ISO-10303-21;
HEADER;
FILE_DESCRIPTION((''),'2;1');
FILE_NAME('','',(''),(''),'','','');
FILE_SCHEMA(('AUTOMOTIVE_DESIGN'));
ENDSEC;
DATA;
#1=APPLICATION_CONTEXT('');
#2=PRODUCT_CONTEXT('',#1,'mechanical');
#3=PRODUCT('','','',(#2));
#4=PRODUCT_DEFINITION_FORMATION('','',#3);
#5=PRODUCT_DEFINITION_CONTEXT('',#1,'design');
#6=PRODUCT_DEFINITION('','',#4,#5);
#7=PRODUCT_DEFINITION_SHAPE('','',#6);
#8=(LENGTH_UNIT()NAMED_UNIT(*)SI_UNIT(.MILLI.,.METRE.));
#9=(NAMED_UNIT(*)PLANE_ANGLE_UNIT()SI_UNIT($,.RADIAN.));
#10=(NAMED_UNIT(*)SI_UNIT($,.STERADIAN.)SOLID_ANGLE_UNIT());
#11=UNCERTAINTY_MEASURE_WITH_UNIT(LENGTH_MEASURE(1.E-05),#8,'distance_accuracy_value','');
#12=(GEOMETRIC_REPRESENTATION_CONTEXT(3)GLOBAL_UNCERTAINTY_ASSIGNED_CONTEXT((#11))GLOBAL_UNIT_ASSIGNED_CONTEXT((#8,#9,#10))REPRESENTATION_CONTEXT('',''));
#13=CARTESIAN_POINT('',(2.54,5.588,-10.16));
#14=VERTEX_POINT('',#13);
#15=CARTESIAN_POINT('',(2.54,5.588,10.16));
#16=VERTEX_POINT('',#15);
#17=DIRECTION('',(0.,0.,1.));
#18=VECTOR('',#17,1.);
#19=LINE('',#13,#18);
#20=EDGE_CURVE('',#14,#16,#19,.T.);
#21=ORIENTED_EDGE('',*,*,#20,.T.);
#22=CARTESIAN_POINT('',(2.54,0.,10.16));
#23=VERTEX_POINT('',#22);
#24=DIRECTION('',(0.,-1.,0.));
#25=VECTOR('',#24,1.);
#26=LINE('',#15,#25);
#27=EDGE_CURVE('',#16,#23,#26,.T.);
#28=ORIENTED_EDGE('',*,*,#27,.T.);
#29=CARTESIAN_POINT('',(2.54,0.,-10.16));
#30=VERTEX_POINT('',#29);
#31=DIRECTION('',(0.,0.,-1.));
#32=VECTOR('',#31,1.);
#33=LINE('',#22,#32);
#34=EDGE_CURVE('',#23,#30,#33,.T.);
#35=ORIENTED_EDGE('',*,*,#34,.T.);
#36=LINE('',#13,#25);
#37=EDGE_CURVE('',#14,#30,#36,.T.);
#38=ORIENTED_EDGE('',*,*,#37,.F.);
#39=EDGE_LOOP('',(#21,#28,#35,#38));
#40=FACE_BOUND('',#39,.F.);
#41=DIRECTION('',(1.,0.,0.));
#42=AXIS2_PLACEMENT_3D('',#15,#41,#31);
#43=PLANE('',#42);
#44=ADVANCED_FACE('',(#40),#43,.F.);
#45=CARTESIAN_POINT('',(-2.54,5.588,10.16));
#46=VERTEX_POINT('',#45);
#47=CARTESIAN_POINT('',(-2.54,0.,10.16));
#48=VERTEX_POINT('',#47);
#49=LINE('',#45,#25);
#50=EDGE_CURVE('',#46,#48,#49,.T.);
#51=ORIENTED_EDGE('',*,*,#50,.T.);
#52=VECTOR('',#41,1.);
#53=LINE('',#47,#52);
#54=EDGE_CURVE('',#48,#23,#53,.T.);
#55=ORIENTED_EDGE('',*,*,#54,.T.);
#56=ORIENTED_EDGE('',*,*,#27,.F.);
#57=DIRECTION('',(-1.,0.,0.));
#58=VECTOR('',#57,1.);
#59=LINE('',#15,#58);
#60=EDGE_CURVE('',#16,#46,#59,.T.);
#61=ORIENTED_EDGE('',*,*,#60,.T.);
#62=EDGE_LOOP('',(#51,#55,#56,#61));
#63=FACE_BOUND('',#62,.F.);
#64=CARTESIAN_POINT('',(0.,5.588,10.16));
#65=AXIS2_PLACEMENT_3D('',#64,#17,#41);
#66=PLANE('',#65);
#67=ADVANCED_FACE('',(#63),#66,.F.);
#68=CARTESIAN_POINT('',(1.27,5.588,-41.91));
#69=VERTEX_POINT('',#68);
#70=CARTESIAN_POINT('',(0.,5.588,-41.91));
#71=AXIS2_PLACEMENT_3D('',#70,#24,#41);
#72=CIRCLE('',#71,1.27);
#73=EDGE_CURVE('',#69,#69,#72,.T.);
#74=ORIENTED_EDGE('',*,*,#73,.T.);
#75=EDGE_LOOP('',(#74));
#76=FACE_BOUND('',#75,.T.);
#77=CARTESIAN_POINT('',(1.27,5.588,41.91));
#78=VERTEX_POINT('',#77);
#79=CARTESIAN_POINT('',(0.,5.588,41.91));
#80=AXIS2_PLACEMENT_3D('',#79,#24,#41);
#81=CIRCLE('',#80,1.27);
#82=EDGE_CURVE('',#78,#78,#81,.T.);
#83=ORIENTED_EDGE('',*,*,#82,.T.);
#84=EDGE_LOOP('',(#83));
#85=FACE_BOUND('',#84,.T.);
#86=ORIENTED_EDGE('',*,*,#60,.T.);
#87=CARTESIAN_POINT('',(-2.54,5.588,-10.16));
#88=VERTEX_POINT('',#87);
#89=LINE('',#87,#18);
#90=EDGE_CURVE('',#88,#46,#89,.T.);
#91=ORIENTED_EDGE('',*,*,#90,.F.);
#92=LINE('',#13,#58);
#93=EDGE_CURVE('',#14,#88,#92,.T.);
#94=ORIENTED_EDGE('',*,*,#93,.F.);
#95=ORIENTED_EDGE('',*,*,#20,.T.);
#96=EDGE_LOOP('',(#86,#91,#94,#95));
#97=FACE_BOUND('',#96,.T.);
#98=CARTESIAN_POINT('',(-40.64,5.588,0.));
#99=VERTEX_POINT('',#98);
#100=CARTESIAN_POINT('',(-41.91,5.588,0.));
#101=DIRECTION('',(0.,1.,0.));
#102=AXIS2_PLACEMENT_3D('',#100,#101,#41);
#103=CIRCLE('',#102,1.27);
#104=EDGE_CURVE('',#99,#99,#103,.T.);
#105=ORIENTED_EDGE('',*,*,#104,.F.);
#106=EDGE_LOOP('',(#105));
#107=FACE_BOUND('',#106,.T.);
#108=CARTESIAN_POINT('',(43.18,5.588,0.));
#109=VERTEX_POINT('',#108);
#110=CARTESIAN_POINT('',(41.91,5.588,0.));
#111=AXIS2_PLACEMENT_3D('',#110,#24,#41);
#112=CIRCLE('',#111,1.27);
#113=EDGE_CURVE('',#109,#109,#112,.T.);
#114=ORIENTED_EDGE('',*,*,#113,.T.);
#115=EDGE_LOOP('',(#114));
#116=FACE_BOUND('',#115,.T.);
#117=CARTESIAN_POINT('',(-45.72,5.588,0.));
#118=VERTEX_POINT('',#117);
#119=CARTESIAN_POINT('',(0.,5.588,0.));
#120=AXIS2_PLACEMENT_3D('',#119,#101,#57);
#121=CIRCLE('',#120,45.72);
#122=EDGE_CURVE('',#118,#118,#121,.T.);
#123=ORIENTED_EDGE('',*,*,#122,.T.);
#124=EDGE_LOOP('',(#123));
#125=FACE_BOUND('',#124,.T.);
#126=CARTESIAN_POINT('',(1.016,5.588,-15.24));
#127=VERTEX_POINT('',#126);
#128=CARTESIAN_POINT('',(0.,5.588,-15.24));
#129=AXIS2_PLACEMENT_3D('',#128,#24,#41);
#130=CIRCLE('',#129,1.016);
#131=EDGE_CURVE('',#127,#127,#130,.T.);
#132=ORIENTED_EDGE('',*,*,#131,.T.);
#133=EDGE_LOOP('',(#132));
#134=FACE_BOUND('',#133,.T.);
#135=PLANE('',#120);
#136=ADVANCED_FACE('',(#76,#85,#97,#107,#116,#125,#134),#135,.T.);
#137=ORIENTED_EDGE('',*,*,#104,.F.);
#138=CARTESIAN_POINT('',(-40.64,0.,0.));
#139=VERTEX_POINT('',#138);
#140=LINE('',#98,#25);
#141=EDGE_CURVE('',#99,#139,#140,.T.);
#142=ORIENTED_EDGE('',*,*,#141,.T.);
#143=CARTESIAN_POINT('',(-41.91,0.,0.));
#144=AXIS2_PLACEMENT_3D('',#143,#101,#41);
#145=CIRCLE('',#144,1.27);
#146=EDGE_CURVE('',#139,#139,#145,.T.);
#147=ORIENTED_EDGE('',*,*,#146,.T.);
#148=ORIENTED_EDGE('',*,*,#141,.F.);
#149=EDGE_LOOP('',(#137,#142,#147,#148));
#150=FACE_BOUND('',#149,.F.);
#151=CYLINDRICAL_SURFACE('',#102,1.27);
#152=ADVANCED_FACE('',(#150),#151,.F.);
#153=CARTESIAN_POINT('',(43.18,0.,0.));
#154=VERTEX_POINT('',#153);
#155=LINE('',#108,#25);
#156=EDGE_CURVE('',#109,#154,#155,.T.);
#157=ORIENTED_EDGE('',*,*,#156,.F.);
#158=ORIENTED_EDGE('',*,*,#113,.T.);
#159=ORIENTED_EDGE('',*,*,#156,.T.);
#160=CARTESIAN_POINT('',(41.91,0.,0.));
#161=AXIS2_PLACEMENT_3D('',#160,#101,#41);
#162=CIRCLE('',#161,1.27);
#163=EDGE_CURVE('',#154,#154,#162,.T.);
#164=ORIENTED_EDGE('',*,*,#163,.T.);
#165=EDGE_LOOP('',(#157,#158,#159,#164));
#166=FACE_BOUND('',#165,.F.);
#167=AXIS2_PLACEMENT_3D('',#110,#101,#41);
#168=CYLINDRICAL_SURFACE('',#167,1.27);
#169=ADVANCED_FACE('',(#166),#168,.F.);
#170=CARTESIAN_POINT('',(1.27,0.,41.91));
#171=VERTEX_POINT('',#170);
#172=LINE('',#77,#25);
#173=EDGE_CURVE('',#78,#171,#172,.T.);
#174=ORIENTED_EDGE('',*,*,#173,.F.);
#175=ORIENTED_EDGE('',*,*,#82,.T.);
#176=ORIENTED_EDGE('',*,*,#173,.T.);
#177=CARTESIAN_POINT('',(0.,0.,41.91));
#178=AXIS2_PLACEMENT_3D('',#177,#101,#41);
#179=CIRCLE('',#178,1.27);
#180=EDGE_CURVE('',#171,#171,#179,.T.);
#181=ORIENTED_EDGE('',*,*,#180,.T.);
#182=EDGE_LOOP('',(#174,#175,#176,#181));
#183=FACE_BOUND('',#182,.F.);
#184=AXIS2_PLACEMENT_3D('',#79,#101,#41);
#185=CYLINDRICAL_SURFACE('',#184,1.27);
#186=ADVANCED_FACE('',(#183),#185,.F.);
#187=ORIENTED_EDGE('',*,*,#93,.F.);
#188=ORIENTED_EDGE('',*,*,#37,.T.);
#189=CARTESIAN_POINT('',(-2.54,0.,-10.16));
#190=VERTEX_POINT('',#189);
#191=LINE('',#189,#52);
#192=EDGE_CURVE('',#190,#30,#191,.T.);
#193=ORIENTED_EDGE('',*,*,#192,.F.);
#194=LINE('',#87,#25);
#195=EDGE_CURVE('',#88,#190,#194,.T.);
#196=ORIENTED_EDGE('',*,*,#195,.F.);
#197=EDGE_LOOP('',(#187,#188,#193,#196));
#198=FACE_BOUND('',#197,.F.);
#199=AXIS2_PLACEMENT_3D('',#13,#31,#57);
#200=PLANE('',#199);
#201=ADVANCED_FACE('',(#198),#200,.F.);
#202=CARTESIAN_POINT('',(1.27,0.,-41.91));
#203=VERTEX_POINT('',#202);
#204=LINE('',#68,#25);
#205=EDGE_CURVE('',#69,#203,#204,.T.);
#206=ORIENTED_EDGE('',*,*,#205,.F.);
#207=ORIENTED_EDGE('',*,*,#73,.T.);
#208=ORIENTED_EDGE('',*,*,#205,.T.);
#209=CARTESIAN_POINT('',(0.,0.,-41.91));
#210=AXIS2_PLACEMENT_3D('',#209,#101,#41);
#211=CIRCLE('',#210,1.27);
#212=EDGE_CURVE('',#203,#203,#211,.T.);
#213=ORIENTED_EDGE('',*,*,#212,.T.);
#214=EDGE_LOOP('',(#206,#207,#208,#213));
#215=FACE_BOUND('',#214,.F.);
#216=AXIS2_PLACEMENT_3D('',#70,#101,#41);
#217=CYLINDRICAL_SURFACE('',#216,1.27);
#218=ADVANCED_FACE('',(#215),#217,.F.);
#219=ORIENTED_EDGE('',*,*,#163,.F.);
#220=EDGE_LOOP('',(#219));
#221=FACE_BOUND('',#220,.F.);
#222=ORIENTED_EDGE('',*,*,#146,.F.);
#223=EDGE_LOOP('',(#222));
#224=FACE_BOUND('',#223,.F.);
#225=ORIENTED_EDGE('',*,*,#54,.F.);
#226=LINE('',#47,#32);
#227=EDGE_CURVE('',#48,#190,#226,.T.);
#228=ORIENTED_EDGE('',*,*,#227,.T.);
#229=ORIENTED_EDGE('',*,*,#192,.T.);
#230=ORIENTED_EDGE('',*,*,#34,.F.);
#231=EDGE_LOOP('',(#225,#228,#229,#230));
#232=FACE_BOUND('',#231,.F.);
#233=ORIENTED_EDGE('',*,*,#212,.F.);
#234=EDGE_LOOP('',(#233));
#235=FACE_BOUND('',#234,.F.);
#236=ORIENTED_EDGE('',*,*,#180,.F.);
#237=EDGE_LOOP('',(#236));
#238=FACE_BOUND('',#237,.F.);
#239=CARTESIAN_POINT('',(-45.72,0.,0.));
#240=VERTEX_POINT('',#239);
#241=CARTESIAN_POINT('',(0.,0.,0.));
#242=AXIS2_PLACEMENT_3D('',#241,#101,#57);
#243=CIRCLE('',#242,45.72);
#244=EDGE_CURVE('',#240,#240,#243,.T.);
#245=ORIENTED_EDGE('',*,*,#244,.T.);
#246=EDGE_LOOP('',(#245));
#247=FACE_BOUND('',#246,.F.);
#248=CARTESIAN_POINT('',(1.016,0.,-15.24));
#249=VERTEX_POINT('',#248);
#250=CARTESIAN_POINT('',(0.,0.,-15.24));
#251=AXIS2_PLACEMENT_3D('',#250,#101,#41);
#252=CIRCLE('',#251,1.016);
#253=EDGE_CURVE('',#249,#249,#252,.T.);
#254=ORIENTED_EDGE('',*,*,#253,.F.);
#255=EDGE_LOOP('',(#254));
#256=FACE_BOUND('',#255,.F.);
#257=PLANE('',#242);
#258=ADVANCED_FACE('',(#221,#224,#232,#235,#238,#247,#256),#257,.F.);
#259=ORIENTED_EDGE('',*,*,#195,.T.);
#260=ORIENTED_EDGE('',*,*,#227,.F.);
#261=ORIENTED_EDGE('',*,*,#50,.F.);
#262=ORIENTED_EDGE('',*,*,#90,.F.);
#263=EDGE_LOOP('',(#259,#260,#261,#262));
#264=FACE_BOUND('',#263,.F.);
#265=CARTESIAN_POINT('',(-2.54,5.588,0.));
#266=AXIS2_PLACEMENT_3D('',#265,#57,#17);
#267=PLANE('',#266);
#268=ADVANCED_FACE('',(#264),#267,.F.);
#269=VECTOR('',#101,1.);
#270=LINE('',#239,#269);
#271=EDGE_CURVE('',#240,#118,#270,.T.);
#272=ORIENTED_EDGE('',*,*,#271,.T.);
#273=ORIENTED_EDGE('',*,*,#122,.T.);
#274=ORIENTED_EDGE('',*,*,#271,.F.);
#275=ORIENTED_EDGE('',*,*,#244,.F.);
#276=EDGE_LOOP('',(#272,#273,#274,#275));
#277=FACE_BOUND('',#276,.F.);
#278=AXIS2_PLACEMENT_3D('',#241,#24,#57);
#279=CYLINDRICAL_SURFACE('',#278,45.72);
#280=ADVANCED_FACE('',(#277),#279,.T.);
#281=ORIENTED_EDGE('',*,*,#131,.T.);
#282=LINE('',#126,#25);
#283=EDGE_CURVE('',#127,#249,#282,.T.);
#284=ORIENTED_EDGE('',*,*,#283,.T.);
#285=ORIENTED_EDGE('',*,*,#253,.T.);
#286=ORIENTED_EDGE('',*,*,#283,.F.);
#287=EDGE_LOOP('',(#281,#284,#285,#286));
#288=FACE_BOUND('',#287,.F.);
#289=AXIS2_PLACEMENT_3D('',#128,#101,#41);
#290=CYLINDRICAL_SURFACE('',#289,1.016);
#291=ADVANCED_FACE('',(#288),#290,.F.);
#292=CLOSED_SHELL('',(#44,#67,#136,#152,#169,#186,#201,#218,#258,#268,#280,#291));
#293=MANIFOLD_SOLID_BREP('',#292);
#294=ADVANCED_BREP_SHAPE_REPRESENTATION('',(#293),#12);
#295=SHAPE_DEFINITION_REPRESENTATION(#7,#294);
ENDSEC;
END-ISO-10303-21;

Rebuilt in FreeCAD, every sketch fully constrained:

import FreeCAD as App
import Part
import Sketcher
Q = App.Units.Quantity

doc = App.newDocument("Part")
body = doc.addObject("PartDesign::Body", "Body")

# Sketch on XZ plane
sketch1 = doc.addObject("Sketcher::SketchObject", "Sketch")
body.addObject(sketch1)
sketch1.AttachmentSupport = (doc.XZ_Plane, [""])
sketch1.MapMode = "FlatFace"
sketch1.addGeometry(Part.Circle(App.Vector(0, 0, 0), App.Vector(0, 0, 1), 45.72), False)
sketch1.addConstraint([
    Sketcher.Constraint("Coincident", 0, 3, -1, 1),
    Sketcher.Constraint("Diameter", 0, Q("3.6 in")),
])
pad1 = doc.addObject("PartDesign::Pad", "Pad")
body.addObject(pad1)
pad1.Profile = sketch1
pad1.Length = Q("0.22 in")
pad1.Reversed = True

# Sketch on XZ plane
sketch2 = doc.addObject("Sketcher::SketchObject", "Sketch001")
body.addObject(sketch2)
sketch2.AttachmentSupport = (doc.XZ_Plane, [""])
sketch2.MapMode = "FlatFace"
sketch2.AttachmentOffset = App.Placement(App.Vector(0, 0, -0.22 * 25.4), App.Rotation())
sketch2.addGeometry([
    Part.Circle(App.Vector(0, 41.91, 0), App.Vector(0, 0, 1), 1.27),  # 0
    Part.Circle(App.Vector(-41.91, 0, 0), App.Vector(0, 0, 1), 1.27),  # 1
    Part.Circle(App.Vector(0, -41.91, 0), App.Vector(0, 0, 1), 1.27),  # 2
    Part.Circle(App.Vector(41.91, 0, 0), App.Vector(0, 0, 1), 1.27),  # 3
    Part.LineSegment(App.Vector(2.54, 10.16, 0), App.Vector(2.54, -10.16, 0)),  # 4
    Part.LineSegment(App.Vector(2.54, -10.16, 0), App.Vector(-2.54, -10.16, 0)),  # 5
    Part.LineSegment(App.Vector(-2.54, -10.16, 0), App.Vector(-2.54, 10.16, 0)),  # 6
    Part.LineSegment(App.Vector(-2.54, 10.16, 0), App.Vector(2.54, 10.16, 0)),  # 7
    Part.Circle(App.Vector(0, -15.24, 0), App.Vector(0, 0, 1), 1.016),  # 8
], False)
sketch2.addConstraint([
    Sketcher.Constraint("Coincident", 4, 2, 5, 1),
    Sketcher.Constraint("Coincident", 5, 2, 6, 1),
    Sketcher.Constraint("Coincident", 6, 2, 7, 1),
    Sketcher.Constraint("Coincident", 7, 2, 4, 1),
    Sketcher.Constraint("Vertical", 4),
    Sketcher.Constraint("Horizontal", 5),
    Sketcher.Constraint("Vertical", 6),
    Sketcher.Constraint("Horizontal", 7),
    Sketcher.Constraint("Equal", 0, 1),
    Sketcher.Constraint("Equal", 1, 2),
    Sketcher.Constraint("Equal", 2, 3),
    Sketcher.Constraint("Symmetric", 0, 3, 2, 3, -1, 1),
    Sketcher.Constraint("Symmetric", 1, 3, 3, 3, -1, 1),
    Sketcher.Constraint("Symmetric", 4, 2, 6, 2, -1, 1),
    Sketcher.Constraint("PointOnObject", 0, 3, -2),
    Sketcher.Constraint("PointOnObject", 1, 3, -1),
    Sketcher.Constraint("PointOnObject", 8, 3, -2),
    Sketcher.Constraint("Diameter", 0, Q("0.1 in")),
    Sketcher.Constraint("Diameter", 8, Q("0.08 in")),
    Sketcher.Constraint("DistanceX", 5, 2, 5, 1, Q("0.2 in")),
    Sketcher.Constraint("DistanceY", 4, 2, 4, 1, Q("0.8 in")),
    Sketcher.Constraint("DistanceY", 8, 3, -1, 1, Q("0.6 in")),
    Sketcher.Constraint("DistanceY", -1, 1, 0, 3, Q("1.65 in")),
    Sketcher.Constraint("DistanceX", 1, 3, -1, 1, Q("1.65 in")),
])
pocket1 = doc.addObject("PartDesign::Pocket", "Pocket")
body.addObject(pocket1)
pocket1.Profile = sketch2
pocket1.Length = Q("0.22 in")
pocket1.Reversed = True

doc.recompute()
